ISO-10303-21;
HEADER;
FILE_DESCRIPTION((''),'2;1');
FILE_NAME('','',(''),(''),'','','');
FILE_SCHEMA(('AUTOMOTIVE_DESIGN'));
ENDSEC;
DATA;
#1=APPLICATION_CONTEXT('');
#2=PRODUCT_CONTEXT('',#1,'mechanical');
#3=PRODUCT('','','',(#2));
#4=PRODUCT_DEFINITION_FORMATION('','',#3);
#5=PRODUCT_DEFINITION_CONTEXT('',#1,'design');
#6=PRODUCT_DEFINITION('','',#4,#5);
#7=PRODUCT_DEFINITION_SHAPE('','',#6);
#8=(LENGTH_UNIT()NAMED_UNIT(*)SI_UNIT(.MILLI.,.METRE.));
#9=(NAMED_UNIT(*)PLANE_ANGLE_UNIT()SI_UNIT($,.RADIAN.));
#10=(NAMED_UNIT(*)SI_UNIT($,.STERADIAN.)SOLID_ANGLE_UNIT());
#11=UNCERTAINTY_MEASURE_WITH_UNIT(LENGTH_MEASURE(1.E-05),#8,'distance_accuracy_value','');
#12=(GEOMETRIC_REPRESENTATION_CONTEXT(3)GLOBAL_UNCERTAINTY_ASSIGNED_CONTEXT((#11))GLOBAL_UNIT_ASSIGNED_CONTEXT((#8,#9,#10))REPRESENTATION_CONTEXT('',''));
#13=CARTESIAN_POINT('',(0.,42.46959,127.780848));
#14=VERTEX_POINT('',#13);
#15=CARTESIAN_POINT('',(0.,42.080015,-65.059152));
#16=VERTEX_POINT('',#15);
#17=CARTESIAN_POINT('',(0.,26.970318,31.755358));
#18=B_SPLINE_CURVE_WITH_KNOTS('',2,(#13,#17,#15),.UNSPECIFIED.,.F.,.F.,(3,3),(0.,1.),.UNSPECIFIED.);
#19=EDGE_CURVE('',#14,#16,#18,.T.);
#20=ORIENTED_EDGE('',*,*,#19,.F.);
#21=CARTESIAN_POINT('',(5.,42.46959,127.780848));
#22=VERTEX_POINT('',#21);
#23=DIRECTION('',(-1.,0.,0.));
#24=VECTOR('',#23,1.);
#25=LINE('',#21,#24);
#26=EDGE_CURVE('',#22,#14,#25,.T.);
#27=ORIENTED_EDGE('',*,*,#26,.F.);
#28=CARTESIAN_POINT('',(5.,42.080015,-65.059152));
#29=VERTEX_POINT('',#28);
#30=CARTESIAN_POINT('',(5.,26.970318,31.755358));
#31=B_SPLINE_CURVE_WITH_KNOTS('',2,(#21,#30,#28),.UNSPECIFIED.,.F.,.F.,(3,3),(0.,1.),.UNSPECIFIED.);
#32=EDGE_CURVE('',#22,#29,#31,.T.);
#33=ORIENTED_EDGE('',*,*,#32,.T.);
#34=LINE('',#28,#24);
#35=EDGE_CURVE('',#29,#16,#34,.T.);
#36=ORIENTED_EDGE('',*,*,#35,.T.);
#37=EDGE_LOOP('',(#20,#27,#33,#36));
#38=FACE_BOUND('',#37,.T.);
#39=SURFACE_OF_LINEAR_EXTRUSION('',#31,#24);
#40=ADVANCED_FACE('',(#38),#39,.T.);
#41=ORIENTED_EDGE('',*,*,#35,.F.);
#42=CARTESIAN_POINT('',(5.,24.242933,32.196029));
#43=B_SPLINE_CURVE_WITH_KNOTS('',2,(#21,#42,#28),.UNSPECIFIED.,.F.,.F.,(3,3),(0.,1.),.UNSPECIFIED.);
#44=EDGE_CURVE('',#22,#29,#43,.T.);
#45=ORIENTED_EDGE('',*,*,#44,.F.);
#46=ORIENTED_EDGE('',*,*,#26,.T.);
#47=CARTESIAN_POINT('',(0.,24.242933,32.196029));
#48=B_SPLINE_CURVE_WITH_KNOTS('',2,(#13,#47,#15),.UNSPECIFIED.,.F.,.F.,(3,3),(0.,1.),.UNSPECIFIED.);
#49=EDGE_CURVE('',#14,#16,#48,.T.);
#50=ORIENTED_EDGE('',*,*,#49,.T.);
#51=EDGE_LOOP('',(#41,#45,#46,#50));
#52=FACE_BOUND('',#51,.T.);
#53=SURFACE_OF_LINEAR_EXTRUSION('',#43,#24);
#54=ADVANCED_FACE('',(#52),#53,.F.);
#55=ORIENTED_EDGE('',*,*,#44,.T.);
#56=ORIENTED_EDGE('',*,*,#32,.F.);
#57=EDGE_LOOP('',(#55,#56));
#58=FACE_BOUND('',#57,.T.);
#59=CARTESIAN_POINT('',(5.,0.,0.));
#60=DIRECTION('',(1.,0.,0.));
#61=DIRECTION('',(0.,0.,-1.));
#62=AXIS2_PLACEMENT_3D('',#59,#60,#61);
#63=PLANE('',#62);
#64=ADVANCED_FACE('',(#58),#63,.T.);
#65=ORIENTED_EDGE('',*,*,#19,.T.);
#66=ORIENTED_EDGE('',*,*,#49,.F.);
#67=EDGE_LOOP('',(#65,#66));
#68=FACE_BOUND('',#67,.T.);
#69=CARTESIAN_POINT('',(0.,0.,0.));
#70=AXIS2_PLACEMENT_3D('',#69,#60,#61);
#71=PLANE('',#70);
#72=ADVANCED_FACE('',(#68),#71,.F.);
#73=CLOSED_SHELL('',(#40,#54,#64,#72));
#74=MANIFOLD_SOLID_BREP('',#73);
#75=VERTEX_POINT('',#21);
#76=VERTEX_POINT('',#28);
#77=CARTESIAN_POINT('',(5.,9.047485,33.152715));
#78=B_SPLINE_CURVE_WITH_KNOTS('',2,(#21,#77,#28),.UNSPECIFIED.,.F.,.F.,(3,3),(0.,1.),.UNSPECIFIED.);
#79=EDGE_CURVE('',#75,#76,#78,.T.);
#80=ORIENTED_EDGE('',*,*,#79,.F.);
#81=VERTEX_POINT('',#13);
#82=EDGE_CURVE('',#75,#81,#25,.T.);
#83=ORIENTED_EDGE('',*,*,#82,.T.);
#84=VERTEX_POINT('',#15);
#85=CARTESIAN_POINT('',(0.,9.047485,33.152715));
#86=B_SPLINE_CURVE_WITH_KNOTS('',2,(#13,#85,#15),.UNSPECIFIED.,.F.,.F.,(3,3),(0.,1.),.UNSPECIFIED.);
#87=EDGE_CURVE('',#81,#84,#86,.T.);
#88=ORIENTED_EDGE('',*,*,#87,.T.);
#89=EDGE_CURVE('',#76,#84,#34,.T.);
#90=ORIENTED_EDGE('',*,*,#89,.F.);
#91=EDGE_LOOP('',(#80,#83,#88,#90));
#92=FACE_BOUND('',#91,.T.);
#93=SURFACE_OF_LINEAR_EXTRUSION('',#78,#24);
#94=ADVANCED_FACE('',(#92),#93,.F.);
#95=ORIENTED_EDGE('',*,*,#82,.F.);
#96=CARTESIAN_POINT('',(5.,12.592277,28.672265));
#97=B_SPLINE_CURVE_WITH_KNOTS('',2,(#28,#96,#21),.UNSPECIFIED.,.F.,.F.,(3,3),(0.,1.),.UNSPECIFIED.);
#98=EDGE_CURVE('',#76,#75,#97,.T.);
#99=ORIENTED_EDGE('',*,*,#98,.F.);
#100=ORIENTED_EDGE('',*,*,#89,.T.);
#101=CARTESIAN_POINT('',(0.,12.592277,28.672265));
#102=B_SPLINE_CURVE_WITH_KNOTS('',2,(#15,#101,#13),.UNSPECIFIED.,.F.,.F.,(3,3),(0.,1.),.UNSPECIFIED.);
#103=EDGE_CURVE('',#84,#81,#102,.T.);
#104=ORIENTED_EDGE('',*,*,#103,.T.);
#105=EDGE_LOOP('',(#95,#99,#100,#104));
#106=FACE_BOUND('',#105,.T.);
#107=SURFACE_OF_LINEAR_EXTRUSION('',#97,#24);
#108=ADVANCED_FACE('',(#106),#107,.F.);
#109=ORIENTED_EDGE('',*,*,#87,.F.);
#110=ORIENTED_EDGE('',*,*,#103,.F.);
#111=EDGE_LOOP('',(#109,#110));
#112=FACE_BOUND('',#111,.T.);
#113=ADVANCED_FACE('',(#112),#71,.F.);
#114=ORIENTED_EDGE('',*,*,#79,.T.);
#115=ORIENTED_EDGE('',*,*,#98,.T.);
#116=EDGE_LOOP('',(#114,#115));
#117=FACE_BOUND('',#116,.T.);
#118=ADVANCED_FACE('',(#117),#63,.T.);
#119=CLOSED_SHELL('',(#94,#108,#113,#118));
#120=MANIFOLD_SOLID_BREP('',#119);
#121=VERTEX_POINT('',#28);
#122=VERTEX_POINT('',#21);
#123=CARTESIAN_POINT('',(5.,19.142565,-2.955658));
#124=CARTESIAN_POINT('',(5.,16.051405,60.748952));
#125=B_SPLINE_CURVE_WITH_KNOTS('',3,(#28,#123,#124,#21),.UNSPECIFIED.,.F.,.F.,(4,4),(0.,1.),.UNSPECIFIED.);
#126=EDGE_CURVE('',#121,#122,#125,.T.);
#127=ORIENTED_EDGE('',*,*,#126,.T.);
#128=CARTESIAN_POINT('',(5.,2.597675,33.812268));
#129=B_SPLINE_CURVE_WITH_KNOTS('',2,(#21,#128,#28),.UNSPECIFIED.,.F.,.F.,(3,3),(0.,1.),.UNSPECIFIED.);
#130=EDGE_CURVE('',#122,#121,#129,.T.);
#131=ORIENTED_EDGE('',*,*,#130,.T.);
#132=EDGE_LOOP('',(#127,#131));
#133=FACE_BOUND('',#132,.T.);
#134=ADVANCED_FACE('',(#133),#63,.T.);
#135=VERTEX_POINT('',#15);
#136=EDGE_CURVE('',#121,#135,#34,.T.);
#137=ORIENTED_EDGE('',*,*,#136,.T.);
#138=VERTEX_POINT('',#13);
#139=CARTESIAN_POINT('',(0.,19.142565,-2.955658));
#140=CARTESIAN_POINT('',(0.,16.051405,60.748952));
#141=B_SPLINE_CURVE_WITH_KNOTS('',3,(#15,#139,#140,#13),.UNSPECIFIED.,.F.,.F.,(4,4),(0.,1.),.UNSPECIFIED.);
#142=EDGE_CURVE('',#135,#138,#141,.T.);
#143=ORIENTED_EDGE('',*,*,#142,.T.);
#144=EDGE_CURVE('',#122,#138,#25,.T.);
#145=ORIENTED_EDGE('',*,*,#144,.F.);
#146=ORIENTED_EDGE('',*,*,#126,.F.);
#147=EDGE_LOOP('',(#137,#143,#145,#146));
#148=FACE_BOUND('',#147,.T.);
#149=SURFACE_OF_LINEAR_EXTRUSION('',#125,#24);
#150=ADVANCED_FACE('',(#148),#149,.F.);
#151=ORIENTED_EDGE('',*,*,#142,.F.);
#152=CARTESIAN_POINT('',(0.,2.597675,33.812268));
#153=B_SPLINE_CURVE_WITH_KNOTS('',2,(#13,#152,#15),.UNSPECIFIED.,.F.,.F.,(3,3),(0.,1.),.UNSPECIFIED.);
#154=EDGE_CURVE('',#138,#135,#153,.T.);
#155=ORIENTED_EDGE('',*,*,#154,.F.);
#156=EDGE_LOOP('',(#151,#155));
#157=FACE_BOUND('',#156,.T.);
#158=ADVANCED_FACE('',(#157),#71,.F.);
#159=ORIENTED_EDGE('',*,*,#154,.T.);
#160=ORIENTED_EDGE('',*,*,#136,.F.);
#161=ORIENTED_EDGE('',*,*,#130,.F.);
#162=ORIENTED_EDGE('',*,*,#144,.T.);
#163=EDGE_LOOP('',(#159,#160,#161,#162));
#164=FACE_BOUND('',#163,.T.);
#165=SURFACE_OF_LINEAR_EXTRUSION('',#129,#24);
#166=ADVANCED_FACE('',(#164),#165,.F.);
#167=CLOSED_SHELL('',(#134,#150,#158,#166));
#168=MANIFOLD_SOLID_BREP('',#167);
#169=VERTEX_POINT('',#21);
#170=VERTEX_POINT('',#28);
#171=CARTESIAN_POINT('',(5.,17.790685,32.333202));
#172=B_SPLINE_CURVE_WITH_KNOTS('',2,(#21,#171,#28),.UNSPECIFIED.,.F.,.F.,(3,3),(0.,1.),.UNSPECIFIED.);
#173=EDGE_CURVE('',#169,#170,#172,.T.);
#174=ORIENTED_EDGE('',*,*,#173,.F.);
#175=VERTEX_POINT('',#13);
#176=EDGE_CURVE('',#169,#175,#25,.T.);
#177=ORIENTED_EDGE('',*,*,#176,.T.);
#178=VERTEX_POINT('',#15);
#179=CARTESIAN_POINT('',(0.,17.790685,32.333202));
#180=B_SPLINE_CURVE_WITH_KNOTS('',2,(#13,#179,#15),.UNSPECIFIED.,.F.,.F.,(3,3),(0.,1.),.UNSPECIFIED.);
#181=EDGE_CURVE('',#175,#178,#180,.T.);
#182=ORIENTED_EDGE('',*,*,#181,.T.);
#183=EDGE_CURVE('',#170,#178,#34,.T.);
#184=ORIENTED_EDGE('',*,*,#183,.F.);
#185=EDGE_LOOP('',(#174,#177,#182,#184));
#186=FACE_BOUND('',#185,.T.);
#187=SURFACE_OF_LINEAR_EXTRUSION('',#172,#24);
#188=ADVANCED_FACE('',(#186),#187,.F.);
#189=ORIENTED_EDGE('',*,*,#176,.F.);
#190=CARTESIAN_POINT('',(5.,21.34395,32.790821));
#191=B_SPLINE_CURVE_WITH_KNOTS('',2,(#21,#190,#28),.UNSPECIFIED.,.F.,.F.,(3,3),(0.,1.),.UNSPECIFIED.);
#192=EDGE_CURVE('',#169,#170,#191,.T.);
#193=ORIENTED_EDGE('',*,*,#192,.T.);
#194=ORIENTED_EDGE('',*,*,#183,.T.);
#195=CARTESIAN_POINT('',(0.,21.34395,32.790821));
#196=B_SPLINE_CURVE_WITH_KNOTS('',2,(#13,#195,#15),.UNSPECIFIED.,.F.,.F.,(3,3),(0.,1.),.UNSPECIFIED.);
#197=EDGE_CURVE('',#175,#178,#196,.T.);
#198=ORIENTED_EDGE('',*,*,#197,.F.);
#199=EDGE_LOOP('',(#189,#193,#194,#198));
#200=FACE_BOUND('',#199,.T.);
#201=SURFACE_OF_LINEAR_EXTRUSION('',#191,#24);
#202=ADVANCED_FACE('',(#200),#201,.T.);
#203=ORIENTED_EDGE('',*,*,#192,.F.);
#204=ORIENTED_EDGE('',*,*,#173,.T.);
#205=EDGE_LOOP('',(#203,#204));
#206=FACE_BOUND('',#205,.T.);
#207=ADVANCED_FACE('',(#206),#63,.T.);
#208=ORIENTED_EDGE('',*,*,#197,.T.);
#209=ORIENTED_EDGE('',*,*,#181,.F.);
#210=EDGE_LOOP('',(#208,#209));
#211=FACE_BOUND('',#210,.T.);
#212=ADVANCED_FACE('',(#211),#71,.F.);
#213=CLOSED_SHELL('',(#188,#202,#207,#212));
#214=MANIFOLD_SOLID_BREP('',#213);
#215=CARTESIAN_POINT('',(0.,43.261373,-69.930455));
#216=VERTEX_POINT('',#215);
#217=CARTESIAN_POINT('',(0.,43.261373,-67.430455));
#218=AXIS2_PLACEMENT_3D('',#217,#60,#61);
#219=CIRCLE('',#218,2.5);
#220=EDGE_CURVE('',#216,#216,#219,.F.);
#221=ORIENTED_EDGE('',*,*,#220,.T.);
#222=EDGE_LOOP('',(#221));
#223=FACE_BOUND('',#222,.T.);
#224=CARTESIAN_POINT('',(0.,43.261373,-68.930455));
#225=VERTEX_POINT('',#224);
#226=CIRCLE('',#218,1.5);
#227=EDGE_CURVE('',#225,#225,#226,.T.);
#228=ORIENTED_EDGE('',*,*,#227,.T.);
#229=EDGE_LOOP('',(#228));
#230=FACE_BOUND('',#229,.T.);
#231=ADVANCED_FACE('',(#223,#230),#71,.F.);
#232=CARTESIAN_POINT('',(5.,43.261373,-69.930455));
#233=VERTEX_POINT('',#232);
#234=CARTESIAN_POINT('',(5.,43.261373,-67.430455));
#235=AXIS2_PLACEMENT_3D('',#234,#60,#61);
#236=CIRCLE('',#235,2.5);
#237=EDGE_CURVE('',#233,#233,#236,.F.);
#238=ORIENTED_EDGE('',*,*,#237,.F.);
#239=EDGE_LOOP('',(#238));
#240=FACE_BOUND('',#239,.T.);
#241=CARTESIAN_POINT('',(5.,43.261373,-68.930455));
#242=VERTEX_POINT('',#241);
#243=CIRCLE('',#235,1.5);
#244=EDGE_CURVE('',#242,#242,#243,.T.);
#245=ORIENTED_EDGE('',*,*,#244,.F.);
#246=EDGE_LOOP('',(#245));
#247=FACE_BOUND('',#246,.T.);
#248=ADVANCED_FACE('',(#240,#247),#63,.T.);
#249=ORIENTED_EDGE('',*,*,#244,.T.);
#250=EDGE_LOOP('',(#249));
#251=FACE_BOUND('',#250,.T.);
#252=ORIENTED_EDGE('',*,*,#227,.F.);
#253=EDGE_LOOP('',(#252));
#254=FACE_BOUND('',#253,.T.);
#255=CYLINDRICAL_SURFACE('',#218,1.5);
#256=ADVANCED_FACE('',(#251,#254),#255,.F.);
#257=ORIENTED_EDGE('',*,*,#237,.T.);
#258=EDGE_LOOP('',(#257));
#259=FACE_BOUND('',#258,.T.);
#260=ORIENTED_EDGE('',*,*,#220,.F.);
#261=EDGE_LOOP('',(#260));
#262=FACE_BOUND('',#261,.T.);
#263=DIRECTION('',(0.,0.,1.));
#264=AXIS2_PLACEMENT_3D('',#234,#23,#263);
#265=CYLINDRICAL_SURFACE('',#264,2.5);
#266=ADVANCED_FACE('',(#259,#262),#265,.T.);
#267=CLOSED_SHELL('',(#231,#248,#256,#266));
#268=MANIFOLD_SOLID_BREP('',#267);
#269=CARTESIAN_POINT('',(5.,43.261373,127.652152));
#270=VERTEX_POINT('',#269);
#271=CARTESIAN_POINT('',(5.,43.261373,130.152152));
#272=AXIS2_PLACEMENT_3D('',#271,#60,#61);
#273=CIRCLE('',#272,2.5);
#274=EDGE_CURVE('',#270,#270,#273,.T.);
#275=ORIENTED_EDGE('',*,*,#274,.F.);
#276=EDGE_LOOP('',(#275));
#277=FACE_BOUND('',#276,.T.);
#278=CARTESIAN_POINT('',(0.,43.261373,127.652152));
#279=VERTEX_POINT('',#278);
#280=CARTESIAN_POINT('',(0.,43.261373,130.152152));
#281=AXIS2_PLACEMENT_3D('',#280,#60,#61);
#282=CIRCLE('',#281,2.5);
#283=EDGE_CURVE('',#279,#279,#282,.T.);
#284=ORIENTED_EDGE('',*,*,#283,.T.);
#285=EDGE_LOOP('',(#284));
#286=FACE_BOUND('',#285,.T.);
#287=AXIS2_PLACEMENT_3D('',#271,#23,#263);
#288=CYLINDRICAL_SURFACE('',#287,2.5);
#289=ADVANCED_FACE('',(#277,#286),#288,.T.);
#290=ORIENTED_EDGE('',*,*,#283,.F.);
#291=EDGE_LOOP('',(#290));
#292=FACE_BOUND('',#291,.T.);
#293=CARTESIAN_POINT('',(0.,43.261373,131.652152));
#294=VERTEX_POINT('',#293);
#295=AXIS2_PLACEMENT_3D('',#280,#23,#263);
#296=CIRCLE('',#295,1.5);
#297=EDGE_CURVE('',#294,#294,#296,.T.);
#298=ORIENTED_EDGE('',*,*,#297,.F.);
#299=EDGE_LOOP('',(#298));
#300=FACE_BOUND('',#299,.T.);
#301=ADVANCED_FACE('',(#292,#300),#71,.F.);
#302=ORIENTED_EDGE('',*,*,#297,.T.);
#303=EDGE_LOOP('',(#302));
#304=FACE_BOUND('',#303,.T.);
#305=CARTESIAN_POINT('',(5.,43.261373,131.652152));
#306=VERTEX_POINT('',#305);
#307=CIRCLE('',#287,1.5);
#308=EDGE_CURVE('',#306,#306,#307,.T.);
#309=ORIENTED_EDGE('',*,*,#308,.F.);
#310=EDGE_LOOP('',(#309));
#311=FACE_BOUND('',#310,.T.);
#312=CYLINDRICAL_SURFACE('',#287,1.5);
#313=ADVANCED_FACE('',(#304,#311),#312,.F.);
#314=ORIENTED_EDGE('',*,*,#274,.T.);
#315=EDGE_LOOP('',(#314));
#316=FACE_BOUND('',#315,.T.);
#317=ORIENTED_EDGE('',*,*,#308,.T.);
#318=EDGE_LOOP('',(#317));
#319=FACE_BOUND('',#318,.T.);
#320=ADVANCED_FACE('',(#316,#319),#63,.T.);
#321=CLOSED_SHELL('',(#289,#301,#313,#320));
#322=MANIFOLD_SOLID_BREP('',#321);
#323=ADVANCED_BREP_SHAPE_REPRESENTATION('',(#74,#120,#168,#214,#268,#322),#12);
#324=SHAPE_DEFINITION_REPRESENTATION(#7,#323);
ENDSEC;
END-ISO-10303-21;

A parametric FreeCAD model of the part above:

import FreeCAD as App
import Part
import Sketcher
from FreeCAD import Vector

doc = App.newDocument("Part")
body = doc.addObject("PartDesign::Body", "Body")

# Sketch on YZ plane
sketch1 = body.newObject("Sketcher::SketchObject", "Sketch")
sketch1.AttachmentSupport = (doc.getObject("YZ_Plane"), [""])
sketch1.MapMode = "FlatFace"
sketch1.addGeometry(Part.Circle(Vector(43.261373, 130.152152, 0), Vector(0, 0, 1), 2.5), False)
sketch1.addConstraint(Sketcher.Constraint("Diameter", 0, 5.0))
sketch1.addConstraint(Sketcher.Constraint("DistanceX", -1, 1, 0, 3, 43.261373))
sketch1.addConstraint(Sketcher.Constraint("DistanceY", -1, 1, 0, 3, 130.152152))
pad1 = body.newObject("PartDesign::Pad", "Pad")
pad1.Profile = sketch1
pad1.Length = 5

# Sketch on YZ plane
sketch2 = body.newObject("Sketcher::SketchObject", "Sketch001")
sketch2.AttachmentSupport = (doc.getObject("YZ_Plane"), [""])
sketch2.MapMode = "FlatFace"
sketch2.addGeometry(Part.Circle(Vector(43.261373, 130.152152, 0), Vector(0, 0, 1), 1.5), False)
sketch2.addConstraint(Sketcher.Constraint("Diameter", 0, 3.0))
sketch2.addConstraint(Sketcher.Constraint("DistanceX", -1, 1, 0, 3, 43.261373))
sketch2.addConstraint(Sketcher.Constraint("DistanceY", -1, 1, 0, 3, 130.152152))
pocket1 = body.newObject("PartDesign::Pocket", "Pocket")
pocket1.Profile = sketch2
pocket1.Length = 5
pocket1.Reversed = True
body2 = doc.addObject("PartDesign::Body", "Body001")

# Sketch on YZ plane
sketch3 = body2.newObject("Sketcher::SketchObject", "Sketch002")
sketch3.AttachmentSupport = (doc.getObject("YZ_Plane001"), [""])
sketch3.MapMode = "FlatFace"
sketch3.addGeometry(Part.Circle(Vector(43.261373, -67.430455, 0), Vector(0, 0, 1), 2.5), False)
sketch3.addConstraint(Sketcher.Constraint("Diameter", 0, 5.0))
sketch3.addConstraint(Sketcher.Constraint("DistanceX", -1, 1, 0, 3, 43.261373))
sketch3.addConstraint(Sketcher.Constraint("DistanceY", 0, 3, -1, 1, 67.430455))
pad2 = body2.newObject("PartDesign::Pad", "Pad001")
pad2.Profile = sketch3
pad2.Length = 5

# Sketch on YZ plane
sketch4 = body2.newObject("Sketcher::SketchObject", "Sketch003")
sketch4.AttachmentSupport = (doc.getObject("YZ_Plane001"), [""])
sketch4.MapMode = "FlatFace"
sketch4.AttachmentOffset = App.Placement(Vector(0, 0, 5), App.Rotation())
sketch4.addGeometry(Part.Circle(Vector(43.261373, -67.430455, 0), Vector(0, 0, 1), 1.5), False)
sketch4.addConstraint(Sketcher.Constraint("Diameter", 0, 3.0))
sketch4.addConstraint(Sketcher.Constraint("DistanceX", -1, 1, 0, 3, 43.261373))
sketch4.addConstraint(Sketcher.Constraint("DistanceY", 0, 3, -1, 1, 67.430455))
pocket2 = body2.newObject("PartDesign::Pocket", "Pocket001")
pocket2.Profile = sketch4
pocket2.Length = 5
body3 = doc.addObject("PartDesign::Body", "Body002")

# Sketch on YZ plane
sketch5 = body3.newObject("Sketcher::SketchObject", "Sketch004")
sketch5.AttachmentSupport = (doc.getObject("YZ_Plane002"), [""])
sketch5.MapMode = "FlatFace"
sketch5.addGeometry(Part.BSplineCurve([Vector(42.46959, 127.780848, 0), Vector(26.970318, 31.755358, 0), Vector(42.080015, -65.059152, 0)], [3, 3], [0, 1], False, 2, [1, 1, 1], False), False)
sketch5.addGeometry(Part.BSplineCurve([Vector(42.46959, 127.780848, 0), Vector(24.242933, 32.196029, 0), Vector(42.080015, -65.059152, 0)], [3, 3], [0, 1], False, 2, [1, 1, 1], False), False)
sketch5.addConstraint(Sketcher.Constraint("Block", 0))
sketch5.addConstraint(Sketcher.Constraint("Block", 1))
pad3 = body3.newObject("PartDesign::Pad", "Pad002")
pad3.Profile = sketch5
pad3.Length = 5
body4 = doc.addObject("PartDesign::Body", "Body003")

# Sketch on YZ plane
sketch6 = body4.newObject("Sketcher::SketchObject", "Sketch005")
sketch6.AttachmentSupport = (doc.getObject("YZ_Plane003"), [""])
sketch6.MapMode = "FlatFace"
sketch6.addGeometry(Part.BSplineCurve([Vector(42.46959, 127.780848, 0), Vector(21.34395, 32.790821, 0), Vector(42.080015, -65.059152, 0)], [3, 3], [0, 1], False, 2, [1, 1, 1], False), False)
sketch6.addGeometry(Part.BSplineCurve([Vector(42.46959, 127.780848, 0), Vector(17.790685, 32.333202, 0), Vector(42.080015, -65.059152, 0)], [3, 3], [0, 1], False, 2, [1, 1, 1], False), False)
sketch6.addConstraint(Sketcher.Constraint("Block", 0))
sketch6.addConstraint(Sketcher.Constraint("Block", 1))
pad4 = body4.newObject("PartDesign::Pad", "Pad003")
pad4.Profile = sketch6
pad4.Length = 5
body5 = doc.addObject("PartDesign::Body", "Body004")

# Sketch on YZ plane
sketch7 = body5.newObject("Sketcher::SketchObject", "Sketch006")
sketch7.AttachmentSupport = (doc.getObject("YZ_Plane004"), [""])
sketch7.MapMode = "FlatFace"
sketch7.addGeometry(Part.BSplineCurve([Vector(42.46959, 127.780848, 0), Vector(9.047485, 33.152715, 0), Vector(42.080015, -65.059152, 0)], [3, 3], [0, 1], False, 2, [1, 1, 1], False), False)
sketch7.addGeometry(Part.BSplineCurve([Vector(42.080015, -65.059152, 0), Vector(12.592277, 28.672265, 0), Vector(42.46959, 127.780848, 0)], [3, 3], [0, 1], False, 2, [1, 1, 1], False), False)
sketch7.addConstraint(Sketcher.Constraint("Block", 0))
sketch7.addConstraint(Sketcher.Constraint("Block", 1))
pad5 = body5.newObject("PartDesign::Pad", "Pad004")
pad5.Profile = sketch7
pad5.Length = 5
body6 = doc.addObject("PartDesign::Body", "Body005")

# Sketch on YZ plane
sketch8 = body6.newObject("Sketcher::SketchObject", "Sketch007")
sketch8.AttachmentSupport = (doc.getObject("YZ_Plane005"), [""])
sketch8.MapMode = "FlatFace"
sketch8.addGeometry(Part.BSplineCurve([Vector(42.46959, 127.780848, 0), Vector(2.597675, 33.812268, 0), Vector(42.080015, -65.059152, 0)], [3, 3], [0, 1], False, 2, [1, 1, 1], False), False)
sketch8.addGeometry(Part.BSplineCurve([Vector(42.080015, -65.059152, 0), Vector(19.142565, -2.955658, 0), Vector(16.051405, 60.748952, 0), Vector(42.46959, 127.780848, 0)], [4, 4], [0, 1], False, 3, [1, 1, 1, 1], False), False)
sketch8.addConstraint(Sketcher.Constraint("Block", 0))
sketch8.addConstraint(Sketcher.Constraint("Block", 1))
pad6 = body6.newObject("PartDesign::Pad", "Pad005")
pad6.Profile = sketch8
pad6.Length = 5

doc.recompute()
